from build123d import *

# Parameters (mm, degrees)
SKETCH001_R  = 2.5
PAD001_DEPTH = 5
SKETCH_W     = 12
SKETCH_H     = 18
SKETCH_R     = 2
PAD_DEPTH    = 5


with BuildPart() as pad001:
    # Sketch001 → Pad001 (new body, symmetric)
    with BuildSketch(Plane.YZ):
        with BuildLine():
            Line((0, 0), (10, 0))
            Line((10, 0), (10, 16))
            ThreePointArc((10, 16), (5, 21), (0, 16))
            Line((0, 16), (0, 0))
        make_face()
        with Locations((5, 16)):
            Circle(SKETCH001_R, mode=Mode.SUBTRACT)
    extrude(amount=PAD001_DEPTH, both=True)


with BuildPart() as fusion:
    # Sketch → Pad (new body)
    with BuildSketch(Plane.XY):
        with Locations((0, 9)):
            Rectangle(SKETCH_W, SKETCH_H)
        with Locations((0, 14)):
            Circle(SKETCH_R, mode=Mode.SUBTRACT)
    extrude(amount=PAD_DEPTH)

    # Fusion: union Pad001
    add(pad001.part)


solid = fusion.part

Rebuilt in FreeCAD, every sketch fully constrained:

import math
import FreeCAD as App
import Part
import Sketcher

V = App.Vector
Q = App.Units.Quantity

doc = App.newDocument("Part")
body = doc.addObject("PartDesign::Body", "Body")

# Sketch on YZ plane
sketch1 = doc.addObject("Sketcher::SketchObject", "Sketch")
body.addObject(sketch1)
sketch1.AttachmentSupport = (doc.YZ_Plane, [""])
sketch1.MapMode = "FlatFace"
sketch1.addGeometry([
    Part.LineSegment(V(0, 0, 0), V(10, 0, 0)),  # 0
    Part.LineSegment(V(10, 0, 0), V(10, 16, 0)),  # 1
    Part.ArcOfCircle(Part.Circle(V(5, 16, 0), V(0, 0, 1), 5), math.radians(0), math.radians(180)),  # 2
    Part.LineSegment(V(0, 16, 0), V(0, 0, 0)),  # 3
    Part.Circle(V(5, 16, 0), V(0, 0, 1), 2.5),  # 4
], False)
sketch1.addConstraint([
    Sketcher.Constraint("Coincident", 0, 2, 1, 1),
    Sketcher.Constraint("Tangent", 1, 2, 2, 1),
    Sketcher.Constraint("Tangent", 2, 2, 3, 1),
    Sketcher.Constraint("Coincident", 3, 2, 0, 1),
    Sketcher.Constraint("Horizontal", 0),
    Sketcher.Constraint("Vertical", 1),
    Sketcher.Constraint("Vertical", 3),
    Sketcher.Constraint("Coincident", 3, 2, -1, 1),
    Sketcher.Constraint("Coincident", 4, 3, 2, 3),
    Sketcher.Constraint("Diameter", 4, Q("5 mm")),
    Sketcher.Constraint("Radius", 2, Q("5 mm")),
    Sketcher.Constraint("DistanceY", 1, 1, 1, 2, Q("16 mm")),
])
pad1 = doc.addObject("PartDesign::Pad", "Pad")
body.addObject(pad1)
pad1.Profile = sketch1
pad1.Length = 10
pad1.Midplane = True
body2 = doc.addObject("PartDesign::Body", "Body001")

# Sketch on XY plane
sketch2 = doc.addObject("Sketcher::SketchObject", "Sketch001")
body2.addObject(sketch2)
sketch2.AttachmentSupport = (doc.getObject("XY_Plane001"), [""])
sketch2.MapMode = "FlatFace"
sketch2.addGeometry([
    Part.LineSegment(V(-6, 18, 0), V(-6, 0, 0)),  # 0
    Part.LineSegment(V(-6, 0, 0), V(6, 0, 0)),  # 1
    Part.LineSegment(V(6, 0, 0), V(6, 18, 0)),  # 2
    Part.LineSegment(V(6, 18, 0), V(-6, 18, 0)),  # 3
    Part.Circle(V(0, 14, 0), V(0, 0, 1), 2),  # 4
], False)
sketch2.addConstraint([
    Sketcher.Constraint("Coincident", 0, 2, 1, 1),
    Sketcher.Constraint("Coincident", 1, 2, 2, 1),
    Sketcher.Constraint("Coincident", 2, 2, 3, 1),
    Sketcher.Constraint("Coincident", 3, 2, 0, 1),
    Sketcher.Constraint("Vertical", 0),
    Sketcher.Constraint("Horizontal", 1),
    Sketcher.Constraint("Vertical", 2),
    Sketcher.Constraint("Horizontal", 3),
    Sketcher.Constraint("Symmetric", 0, 2, 1, 2, -1, 1),
    Sketcher.Constraint("PointOnObject", 4, 3, -2),
    Sketcher.Constraint("Diameter", 4, Q("4 mm")),
    Sketcher.Constraint("DistanceX", 1, 1, 1, 2, Q("12 mm")),
    Sketcher.Constraint("DistanceY", 0, 2, 0, 1, Q("18 mm")),
    Sketcher.Constraint("DistanceY", -1, 1, 4, 3, Q("14 mm")),
])
pad2 = doc.addObject("PartDesign::Pad", "Pad001")
body2.addObject(pad2)
pad2.Profile = sketch2
pad2.Length = 5
doc.recompute()

boolean = doc.addObject("PartDesign::Boolean", "Boolean")
body2.addObject(boolean)
boolean.Type = "Fuse"
boolean.addObjects([body])

doc.recompute()
